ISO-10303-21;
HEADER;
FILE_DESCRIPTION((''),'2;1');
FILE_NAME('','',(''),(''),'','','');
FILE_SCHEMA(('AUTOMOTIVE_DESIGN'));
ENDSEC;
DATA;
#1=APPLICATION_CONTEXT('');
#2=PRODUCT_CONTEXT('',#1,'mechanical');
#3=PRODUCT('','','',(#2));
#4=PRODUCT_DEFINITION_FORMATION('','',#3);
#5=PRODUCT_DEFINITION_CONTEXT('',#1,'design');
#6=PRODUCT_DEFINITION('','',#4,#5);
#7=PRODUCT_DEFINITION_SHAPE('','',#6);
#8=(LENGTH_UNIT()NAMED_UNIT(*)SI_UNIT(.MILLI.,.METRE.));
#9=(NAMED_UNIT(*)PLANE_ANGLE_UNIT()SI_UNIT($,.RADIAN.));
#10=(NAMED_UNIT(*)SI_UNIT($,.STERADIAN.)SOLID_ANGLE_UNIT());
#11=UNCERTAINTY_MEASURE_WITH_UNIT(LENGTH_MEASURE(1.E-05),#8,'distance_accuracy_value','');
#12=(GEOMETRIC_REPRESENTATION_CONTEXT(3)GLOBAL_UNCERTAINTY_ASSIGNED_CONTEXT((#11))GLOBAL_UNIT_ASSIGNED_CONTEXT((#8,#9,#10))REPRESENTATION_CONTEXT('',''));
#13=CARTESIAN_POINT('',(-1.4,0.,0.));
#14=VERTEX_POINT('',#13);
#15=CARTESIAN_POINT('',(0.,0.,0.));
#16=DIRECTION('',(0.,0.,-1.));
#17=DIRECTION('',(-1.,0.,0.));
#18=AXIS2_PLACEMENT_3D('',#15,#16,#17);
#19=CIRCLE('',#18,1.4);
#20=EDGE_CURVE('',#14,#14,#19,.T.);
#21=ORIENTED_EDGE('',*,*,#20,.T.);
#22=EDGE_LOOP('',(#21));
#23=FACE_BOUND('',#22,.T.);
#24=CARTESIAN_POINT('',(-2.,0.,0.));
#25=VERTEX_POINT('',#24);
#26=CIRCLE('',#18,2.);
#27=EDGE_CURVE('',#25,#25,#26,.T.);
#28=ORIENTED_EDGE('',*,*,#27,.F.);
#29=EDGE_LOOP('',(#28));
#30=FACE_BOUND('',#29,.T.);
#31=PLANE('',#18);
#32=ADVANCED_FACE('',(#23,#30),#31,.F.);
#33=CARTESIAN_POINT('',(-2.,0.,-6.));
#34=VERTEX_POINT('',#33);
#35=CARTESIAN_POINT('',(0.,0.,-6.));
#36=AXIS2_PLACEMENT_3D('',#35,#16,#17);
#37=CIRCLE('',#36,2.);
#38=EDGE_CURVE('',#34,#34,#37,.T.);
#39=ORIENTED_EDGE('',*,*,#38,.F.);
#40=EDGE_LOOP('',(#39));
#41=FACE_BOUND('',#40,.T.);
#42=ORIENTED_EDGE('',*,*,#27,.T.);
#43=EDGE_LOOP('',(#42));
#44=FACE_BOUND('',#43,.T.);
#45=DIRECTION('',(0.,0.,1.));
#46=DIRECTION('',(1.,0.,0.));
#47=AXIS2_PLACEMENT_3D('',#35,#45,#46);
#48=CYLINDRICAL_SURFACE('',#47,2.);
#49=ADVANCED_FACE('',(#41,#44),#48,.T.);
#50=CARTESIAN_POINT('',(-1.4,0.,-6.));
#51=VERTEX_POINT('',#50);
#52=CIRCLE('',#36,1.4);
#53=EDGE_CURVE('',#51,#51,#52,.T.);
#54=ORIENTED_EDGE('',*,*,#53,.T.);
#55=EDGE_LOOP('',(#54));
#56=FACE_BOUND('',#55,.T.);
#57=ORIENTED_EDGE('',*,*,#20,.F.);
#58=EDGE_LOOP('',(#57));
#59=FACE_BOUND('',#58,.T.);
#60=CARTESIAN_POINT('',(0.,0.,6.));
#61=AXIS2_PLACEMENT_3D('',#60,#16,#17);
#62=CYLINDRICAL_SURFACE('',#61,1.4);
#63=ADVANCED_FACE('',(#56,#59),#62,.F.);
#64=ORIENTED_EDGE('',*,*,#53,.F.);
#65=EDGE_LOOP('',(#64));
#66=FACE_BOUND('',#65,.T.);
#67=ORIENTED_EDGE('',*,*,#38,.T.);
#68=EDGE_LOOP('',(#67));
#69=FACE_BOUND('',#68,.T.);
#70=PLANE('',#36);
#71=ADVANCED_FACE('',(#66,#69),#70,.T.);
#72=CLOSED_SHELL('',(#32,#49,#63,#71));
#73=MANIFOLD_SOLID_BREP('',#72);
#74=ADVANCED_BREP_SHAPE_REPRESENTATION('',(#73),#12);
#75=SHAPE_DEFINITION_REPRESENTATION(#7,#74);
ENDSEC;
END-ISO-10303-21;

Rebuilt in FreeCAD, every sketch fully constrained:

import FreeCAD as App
import Part
import Sketcher

doc = App.newDocument("Part")
body = doc.addObject("PartDesign::Body", "Body")

sketch1 = body.newObject("Sketcher::SketchObject", "Sketch")
sketch1.AttachmentSupport = (doc.getObject("XY_Plane"), [""])
sketch1.MapMode = "FlatFace"
sketch1.addGeometry(Part.Circle(App.Vector(0, 0, 0), App.Vector(0, 0, 1), 1.4), False)
sketch1.addConstraint(Sketcher.Constraint("Coincident", 0, 3, -1, 1))
sketch1.addConstraint(Sketcher.Constraint("Diameter", 0, 2.8))
pad1 = body.newObject("PartDesign::Pad", "Pad")
pad1.Profile = sketch1
pad1.Length = 6

sketch2 = body.newObject("Sketcher::SketchObject", "Sketch001")
sketch2.AttachmentSupport = (doc.getObject("XY_Plane"), [""])
sketch2.MapMode = "FlatFace"
sketch2.addGeometry(Part.Circle(App.Vector(0, 0, 0), App.Vector(0, 0, 1), 2), False)
sketch2.addConstraint(Sketcher.Constraint("Coincident", 0, 3, -1, 1))
sketch2.addConstraint(Sketcher.Constraint("Diameter", 0, 4.0))
pad2 = body.newObject("PartDesign::Pad", "Pad001")
pad2.Profile = sketch2
pad2.Length = 6
pad2.Reversed = True

sketch3 = body.newObject("Sketcher::SketchObject", "Sketch002")
sketch3.AttachmentSupport = (doc.getObject("XY_Plane"), [""])
sketch3.MapMode = "FlatFace"
sketch3.AttachmentOffset = App.Placement(App.Vector(0, 0, -6), App.Rotation())
sketch3.addGeometry(Part.Circle(App.Vector(0, 0, 0), App.Vector(0, 0, 1), 1.4), False)
sketch3.addConstraint(Sketcher.Constraint("Coincident", 0, 3, -1, 1))
sketch3.addConstraint(Sketcher.Constraint("Diameter", 0, 2.8))
pocket1 = body.newObject("PartDesign::Pocket", "Pocket")
pocket1.Profile = sketch3
pocket1.Type = "ThroughAll"
pocket1.Reversed = True

doc.recompute()
